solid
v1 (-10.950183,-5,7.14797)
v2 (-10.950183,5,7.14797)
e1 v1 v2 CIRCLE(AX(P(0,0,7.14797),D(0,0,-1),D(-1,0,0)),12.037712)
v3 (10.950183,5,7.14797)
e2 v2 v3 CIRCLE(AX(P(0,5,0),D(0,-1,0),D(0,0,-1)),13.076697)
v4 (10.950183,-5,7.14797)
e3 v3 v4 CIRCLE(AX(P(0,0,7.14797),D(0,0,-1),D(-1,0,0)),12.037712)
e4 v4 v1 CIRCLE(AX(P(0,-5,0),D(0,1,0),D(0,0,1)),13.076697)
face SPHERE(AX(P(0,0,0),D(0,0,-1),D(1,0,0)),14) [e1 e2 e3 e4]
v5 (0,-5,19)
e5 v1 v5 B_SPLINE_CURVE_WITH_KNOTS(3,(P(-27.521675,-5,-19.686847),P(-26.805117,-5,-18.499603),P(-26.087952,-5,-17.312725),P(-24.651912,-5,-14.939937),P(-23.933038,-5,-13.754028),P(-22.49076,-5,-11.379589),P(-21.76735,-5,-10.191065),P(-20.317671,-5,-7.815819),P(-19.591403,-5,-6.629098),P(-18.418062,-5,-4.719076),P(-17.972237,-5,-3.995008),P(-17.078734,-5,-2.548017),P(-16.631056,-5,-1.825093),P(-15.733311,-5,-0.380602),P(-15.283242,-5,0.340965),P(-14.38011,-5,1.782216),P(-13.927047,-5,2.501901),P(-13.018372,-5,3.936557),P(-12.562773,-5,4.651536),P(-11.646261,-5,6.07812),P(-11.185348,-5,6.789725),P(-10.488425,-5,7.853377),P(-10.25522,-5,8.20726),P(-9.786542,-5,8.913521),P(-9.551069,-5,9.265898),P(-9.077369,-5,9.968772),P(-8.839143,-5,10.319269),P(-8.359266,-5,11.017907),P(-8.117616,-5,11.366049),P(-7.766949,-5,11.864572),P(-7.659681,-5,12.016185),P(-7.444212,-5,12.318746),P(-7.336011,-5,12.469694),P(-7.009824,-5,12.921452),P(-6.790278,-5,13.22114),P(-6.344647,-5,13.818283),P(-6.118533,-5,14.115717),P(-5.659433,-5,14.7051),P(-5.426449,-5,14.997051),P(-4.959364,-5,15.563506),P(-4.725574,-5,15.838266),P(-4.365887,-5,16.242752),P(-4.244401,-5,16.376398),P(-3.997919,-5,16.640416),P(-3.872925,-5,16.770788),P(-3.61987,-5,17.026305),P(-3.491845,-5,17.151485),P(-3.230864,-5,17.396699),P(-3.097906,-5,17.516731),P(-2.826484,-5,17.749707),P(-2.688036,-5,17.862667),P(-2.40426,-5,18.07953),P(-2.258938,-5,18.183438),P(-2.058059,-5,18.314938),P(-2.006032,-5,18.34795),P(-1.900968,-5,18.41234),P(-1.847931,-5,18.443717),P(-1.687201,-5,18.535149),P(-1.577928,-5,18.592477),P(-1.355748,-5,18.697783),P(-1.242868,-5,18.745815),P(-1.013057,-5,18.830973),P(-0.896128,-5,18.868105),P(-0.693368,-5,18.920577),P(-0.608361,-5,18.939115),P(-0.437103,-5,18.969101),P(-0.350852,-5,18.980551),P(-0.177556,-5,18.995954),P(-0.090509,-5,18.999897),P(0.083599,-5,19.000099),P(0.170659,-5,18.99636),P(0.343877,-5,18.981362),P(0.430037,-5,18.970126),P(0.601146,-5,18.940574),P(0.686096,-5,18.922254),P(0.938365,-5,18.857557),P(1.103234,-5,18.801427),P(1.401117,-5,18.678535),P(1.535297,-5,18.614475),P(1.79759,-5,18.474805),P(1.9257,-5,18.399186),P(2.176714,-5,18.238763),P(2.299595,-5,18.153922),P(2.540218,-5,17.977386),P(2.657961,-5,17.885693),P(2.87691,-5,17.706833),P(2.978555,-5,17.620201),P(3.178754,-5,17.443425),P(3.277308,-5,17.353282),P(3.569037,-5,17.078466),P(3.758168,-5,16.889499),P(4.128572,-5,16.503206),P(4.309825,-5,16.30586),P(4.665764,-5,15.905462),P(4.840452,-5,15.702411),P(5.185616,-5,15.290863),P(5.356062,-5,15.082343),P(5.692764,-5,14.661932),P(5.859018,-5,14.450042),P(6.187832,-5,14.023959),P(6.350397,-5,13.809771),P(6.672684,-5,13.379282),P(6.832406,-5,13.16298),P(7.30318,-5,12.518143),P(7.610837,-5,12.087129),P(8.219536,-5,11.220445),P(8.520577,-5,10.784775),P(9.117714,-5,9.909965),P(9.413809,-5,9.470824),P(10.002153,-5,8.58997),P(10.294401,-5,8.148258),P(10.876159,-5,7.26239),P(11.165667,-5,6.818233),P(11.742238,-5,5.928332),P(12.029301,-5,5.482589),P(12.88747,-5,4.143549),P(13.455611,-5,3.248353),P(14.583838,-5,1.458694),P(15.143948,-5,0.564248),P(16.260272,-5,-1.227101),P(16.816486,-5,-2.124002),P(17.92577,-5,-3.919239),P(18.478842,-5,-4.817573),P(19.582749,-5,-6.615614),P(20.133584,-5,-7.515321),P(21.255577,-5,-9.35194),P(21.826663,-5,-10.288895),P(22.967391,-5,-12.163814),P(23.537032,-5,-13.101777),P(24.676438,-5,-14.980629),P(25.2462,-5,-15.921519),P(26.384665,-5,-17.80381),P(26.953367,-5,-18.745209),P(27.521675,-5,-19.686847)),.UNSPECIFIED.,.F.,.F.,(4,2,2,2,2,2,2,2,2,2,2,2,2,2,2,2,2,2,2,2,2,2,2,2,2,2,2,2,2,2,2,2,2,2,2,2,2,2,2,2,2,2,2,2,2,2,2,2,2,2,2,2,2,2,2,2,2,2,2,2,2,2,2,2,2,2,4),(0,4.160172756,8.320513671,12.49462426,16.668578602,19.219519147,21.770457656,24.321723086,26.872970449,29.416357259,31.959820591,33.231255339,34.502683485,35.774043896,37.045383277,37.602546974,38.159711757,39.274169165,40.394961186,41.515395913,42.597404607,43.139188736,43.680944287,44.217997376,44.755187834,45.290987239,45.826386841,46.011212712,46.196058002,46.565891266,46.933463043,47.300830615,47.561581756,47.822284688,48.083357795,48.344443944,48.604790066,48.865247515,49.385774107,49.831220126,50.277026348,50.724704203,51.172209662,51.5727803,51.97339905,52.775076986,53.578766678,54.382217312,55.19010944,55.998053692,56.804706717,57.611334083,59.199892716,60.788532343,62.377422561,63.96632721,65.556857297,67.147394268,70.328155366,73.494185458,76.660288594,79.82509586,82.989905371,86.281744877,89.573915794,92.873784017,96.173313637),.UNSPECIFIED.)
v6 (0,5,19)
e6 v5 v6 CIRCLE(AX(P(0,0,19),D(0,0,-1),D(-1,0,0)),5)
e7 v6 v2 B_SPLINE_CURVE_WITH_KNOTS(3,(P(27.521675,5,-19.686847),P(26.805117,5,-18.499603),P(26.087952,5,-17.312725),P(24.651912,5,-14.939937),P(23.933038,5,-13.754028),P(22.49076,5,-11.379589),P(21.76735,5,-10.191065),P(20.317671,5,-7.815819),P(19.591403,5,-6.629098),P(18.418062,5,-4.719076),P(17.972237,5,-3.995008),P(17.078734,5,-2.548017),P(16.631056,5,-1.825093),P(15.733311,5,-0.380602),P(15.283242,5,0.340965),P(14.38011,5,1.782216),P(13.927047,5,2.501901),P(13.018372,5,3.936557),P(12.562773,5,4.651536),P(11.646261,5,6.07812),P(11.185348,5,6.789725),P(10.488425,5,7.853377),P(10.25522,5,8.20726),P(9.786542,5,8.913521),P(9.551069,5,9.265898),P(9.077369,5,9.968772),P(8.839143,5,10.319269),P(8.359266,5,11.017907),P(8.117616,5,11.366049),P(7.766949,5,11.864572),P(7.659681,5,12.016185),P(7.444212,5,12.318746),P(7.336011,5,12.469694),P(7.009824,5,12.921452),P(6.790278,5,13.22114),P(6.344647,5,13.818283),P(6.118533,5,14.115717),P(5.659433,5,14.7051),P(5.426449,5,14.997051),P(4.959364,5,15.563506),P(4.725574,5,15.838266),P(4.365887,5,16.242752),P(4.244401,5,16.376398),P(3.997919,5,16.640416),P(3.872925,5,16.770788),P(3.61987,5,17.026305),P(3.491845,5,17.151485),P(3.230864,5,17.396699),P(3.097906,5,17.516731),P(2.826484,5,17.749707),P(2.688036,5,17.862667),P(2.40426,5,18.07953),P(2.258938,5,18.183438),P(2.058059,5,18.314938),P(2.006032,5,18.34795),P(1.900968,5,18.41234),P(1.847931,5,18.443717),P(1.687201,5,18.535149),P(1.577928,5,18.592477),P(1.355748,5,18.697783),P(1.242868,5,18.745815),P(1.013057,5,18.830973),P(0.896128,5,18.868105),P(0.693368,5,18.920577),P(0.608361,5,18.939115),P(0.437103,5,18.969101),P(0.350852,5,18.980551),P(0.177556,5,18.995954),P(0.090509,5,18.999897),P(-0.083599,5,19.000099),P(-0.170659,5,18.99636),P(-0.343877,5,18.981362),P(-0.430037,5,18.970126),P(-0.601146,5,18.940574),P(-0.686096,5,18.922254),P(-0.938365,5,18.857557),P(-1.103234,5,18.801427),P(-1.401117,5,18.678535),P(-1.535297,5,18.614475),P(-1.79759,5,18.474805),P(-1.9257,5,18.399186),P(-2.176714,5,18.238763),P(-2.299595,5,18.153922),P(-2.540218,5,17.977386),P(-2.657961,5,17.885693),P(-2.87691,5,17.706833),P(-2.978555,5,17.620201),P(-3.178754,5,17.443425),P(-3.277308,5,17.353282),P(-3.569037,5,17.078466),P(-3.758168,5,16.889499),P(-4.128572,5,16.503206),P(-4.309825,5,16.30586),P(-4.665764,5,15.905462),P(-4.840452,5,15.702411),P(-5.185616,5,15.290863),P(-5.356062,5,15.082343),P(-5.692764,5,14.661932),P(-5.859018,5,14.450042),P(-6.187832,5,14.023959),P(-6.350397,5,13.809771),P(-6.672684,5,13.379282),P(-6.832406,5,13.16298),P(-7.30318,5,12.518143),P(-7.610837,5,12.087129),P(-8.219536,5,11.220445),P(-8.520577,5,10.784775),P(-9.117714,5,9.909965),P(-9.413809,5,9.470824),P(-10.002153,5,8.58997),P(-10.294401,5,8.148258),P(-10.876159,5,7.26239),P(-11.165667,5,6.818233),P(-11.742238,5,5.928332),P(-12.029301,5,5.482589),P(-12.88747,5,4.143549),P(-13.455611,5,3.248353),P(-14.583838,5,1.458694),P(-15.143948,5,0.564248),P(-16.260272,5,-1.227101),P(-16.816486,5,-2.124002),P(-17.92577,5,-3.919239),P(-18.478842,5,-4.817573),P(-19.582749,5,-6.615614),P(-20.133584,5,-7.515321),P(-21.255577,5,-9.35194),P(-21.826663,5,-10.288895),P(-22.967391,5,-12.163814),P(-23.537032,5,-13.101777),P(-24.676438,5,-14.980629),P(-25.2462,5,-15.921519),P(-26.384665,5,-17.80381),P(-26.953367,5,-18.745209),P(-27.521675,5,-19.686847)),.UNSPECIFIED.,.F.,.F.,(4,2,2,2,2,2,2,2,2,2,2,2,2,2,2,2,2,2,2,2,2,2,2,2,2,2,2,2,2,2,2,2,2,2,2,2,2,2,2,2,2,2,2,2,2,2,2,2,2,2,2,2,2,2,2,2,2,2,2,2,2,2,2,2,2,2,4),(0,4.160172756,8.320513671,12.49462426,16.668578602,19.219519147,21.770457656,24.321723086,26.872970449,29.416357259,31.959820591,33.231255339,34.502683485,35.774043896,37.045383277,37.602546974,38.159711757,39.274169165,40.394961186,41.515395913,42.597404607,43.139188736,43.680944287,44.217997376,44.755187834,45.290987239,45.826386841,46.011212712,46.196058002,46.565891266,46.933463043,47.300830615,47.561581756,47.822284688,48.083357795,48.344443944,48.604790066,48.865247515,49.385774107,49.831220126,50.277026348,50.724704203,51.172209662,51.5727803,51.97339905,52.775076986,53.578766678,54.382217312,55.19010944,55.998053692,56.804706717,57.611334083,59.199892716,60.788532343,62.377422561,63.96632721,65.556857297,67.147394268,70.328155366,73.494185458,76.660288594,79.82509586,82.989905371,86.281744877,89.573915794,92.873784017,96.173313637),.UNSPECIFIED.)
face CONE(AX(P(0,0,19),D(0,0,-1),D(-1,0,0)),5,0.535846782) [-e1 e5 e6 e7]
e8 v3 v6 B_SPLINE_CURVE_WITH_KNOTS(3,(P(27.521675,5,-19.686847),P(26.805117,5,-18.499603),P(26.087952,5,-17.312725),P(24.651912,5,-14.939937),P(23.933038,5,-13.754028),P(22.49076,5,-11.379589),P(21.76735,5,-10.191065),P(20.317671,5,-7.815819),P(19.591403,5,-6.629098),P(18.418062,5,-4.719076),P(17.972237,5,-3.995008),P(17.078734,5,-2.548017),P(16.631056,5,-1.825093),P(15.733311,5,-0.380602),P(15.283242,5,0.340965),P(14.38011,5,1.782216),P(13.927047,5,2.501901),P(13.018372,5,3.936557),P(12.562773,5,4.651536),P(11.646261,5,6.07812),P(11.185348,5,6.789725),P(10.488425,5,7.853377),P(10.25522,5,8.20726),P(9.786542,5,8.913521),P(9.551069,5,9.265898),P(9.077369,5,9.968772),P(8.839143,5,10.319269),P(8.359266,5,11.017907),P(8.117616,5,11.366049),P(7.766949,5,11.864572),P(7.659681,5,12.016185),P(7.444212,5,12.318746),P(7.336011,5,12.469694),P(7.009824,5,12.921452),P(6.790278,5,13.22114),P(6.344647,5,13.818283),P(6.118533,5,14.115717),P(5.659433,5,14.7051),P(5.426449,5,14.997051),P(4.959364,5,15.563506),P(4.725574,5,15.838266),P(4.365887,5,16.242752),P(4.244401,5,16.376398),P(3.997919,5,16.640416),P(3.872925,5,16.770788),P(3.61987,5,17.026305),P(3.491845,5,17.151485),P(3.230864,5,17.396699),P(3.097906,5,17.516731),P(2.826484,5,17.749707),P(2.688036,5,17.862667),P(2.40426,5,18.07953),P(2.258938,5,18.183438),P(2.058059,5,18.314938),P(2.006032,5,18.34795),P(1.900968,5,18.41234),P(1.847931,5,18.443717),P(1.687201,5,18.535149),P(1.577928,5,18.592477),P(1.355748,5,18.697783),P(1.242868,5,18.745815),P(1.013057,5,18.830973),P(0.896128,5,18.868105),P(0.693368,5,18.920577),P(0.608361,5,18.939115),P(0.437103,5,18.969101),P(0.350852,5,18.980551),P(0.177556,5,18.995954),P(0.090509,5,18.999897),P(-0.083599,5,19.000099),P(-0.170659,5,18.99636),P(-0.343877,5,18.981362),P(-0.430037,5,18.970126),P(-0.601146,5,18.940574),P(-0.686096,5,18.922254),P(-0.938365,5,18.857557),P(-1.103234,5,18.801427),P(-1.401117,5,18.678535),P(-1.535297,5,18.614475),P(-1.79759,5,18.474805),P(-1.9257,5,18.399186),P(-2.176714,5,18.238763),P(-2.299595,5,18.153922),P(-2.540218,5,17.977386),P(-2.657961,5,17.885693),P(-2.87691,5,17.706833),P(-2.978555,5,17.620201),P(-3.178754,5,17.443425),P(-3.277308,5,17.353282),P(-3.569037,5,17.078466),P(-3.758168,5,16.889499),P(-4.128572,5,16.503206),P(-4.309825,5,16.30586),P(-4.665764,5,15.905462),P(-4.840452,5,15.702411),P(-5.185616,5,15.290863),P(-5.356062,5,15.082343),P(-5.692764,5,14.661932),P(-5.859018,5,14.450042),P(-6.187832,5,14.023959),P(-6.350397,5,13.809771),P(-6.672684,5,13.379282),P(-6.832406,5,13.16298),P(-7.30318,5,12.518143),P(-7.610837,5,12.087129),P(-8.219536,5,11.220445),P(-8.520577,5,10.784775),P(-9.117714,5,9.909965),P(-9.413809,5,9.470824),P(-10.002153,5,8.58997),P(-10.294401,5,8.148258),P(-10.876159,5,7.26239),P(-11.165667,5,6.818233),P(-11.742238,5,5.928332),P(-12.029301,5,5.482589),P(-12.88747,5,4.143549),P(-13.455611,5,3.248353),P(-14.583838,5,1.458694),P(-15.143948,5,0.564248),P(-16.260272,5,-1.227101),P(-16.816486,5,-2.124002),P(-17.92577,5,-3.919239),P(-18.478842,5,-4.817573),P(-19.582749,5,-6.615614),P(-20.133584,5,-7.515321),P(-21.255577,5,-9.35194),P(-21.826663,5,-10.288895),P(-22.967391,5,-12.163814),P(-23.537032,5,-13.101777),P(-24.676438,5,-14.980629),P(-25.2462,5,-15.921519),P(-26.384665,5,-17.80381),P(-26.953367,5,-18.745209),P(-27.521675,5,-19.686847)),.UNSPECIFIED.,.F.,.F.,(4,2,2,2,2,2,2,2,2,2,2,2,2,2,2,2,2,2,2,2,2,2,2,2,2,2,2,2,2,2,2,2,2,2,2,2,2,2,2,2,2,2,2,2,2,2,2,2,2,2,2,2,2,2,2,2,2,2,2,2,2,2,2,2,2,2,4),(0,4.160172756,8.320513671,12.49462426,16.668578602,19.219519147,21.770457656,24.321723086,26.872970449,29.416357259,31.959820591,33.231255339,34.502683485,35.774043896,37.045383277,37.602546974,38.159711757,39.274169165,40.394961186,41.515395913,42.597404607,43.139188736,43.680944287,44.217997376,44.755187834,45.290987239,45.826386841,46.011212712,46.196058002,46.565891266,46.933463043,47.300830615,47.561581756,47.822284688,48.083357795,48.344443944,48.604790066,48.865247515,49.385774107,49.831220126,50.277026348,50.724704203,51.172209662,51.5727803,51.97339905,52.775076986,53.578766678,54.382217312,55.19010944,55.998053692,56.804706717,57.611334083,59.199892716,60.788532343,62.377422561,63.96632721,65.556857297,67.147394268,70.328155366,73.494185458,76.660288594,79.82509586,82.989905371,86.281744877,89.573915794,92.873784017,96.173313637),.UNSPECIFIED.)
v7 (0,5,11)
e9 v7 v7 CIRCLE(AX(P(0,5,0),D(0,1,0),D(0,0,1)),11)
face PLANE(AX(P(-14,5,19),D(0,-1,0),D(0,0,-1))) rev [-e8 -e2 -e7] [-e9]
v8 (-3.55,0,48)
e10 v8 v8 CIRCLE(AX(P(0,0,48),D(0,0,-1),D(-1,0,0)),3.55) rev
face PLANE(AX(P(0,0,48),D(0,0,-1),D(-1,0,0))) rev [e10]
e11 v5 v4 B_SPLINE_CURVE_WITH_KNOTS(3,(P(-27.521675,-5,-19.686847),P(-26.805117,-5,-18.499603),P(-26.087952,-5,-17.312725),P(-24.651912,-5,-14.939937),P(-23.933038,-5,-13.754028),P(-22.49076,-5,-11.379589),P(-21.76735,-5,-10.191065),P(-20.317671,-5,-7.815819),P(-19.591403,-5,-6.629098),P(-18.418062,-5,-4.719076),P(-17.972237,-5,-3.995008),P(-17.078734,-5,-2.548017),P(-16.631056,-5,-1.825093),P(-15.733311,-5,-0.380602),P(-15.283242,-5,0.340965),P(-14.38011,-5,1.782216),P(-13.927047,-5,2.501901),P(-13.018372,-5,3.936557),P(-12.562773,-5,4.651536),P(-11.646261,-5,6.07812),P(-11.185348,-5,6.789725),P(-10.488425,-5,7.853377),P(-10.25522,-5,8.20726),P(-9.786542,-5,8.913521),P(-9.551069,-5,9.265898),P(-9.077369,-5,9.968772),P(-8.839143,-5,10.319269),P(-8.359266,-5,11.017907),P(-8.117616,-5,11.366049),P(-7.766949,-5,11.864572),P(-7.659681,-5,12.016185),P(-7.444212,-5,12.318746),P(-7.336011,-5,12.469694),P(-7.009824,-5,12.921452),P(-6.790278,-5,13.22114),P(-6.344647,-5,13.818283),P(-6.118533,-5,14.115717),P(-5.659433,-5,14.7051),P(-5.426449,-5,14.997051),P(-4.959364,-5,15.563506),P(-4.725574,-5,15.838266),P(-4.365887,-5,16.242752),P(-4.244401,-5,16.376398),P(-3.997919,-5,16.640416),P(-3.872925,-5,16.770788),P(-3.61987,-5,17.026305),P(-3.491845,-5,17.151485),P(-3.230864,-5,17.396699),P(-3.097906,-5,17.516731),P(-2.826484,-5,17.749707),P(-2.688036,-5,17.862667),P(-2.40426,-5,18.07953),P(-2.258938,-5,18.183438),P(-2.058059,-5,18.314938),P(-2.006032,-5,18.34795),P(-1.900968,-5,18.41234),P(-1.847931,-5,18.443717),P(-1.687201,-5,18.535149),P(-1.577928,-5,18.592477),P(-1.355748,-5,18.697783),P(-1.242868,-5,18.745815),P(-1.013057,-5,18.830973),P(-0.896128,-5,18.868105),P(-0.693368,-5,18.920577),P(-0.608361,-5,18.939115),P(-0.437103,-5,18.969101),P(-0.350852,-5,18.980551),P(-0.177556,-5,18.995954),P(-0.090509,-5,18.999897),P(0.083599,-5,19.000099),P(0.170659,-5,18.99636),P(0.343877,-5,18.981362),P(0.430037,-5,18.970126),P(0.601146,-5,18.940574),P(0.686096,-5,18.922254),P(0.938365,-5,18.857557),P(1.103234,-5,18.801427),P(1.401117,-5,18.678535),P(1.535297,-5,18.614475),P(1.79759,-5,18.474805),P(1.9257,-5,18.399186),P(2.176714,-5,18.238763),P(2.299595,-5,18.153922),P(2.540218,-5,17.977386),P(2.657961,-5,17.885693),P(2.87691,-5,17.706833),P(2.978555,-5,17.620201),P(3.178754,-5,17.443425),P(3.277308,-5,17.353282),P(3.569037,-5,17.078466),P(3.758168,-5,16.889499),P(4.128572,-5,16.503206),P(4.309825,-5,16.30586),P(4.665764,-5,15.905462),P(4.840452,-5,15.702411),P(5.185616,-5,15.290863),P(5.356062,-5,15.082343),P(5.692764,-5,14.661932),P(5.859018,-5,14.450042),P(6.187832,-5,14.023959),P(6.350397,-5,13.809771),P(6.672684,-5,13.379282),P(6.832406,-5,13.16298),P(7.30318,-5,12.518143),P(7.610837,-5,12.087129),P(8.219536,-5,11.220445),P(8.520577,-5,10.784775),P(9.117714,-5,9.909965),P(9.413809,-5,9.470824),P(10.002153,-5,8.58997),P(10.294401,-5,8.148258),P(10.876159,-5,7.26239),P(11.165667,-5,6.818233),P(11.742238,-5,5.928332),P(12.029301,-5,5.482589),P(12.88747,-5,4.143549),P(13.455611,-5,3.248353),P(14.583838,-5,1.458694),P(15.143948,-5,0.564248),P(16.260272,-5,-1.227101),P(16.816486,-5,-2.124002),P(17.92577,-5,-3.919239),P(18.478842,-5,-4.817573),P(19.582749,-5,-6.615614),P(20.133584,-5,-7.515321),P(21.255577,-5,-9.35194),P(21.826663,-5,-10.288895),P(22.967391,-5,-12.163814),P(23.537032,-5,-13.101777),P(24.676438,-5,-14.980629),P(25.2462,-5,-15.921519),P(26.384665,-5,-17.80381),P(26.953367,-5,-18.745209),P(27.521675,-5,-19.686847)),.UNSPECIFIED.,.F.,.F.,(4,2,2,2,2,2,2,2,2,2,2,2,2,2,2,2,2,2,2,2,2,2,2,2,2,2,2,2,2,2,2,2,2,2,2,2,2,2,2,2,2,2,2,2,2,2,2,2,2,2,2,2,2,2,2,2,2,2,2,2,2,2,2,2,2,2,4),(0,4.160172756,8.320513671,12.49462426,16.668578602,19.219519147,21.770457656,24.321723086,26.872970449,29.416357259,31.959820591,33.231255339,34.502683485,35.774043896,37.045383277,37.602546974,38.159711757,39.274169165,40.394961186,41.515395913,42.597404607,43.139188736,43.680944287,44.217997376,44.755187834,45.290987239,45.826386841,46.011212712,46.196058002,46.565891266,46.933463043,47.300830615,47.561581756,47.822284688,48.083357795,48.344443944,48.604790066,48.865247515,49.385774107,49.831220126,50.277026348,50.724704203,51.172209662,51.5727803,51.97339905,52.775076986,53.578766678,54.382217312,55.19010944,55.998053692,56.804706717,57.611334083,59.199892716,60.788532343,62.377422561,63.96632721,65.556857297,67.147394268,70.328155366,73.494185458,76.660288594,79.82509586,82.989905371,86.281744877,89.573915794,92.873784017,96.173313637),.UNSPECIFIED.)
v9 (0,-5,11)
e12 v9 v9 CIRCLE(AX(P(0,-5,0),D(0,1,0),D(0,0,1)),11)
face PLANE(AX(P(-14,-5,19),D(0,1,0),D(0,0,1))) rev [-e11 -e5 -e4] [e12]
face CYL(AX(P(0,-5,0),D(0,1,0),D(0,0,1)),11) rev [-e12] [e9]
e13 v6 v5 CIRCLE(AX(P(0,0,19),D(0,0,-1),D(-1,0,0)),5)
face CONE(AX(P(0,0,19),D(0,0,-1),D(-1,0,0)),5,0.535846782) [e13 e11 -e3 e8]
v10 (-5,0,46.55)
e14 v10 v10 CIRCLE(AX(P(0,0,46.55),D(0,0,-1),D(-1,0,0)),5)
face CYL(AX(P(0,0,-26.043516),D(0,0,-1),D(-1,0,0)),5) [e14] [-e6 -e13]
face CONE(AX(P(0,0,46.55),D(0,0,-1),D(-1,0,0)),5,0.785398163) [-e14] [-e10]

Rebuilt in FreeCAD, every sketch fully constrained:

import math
import FreeCAD as App
import Part
import Sketcher
from FreeCAD import Vector


def edges_at(feature, points):
    """Names of the edges that pass closest to the given points."""
    edges = feature.Shape.Edges
    near = lambda p: min(range(len(edges)), key=lambda i: edges[i].distToShape(Part.Vertex(*p))[0])
    return sorted({f"Edge{near(p) + 1}" for p in points})

doc = App.newDocument("Part")
body = doc.addObject("PartDesign::Body", "Body")

sketch1 = body.newObject("Sketcher::SketchObject", "Sketch")
sketch1.AttachmentSupport = (doc.getObject("XZ_Plane"), [""])
sketch1.MapMode = "FlatFace"
sketch1.addGeometry(Part.LineSegment(Vector(0, -14, 0), Vector(0, 48, 0)), False)
sketch1.addGeometry(Part.LineSegment(Vector(0, 48, 0), Vector(5, 48, 0)), False)
sketch1.addGeometry(Part.LineSegment(Vector(5, 48, 0), Vector(5, 19, 0)), False)
sketch1.addGeometry(Part.LineSegment(Vector(5, 19, 0), Vector(12, 7, 0)), False)
sketch1.addGeometry(Part.ArcOfCircle(Part.Circle(Vector(0, 0, 0), Vector(0, 0, 1), 14), math.radians(-90), math.radians(31)), False)
sketch1.addConstraint(Sketcher.Constraint("Coincident", 0, 2, 1, 1))
sketch1.addConstraint(Sketcher.Constraint("Coincident", 1, 2, 2, 1))
sketch1.addConstraint(Sketcher.Constraint("Coincident", 2, 2, 3, 1))
sketch1.addConstraint(Sketcher.Constraint("Tangent", 3, 2, 4, 2))
sketch1.addConstraint(Sketcher.Constraint("Coincident", 4, 1, 0, 1))
sketch1.addConstraint(Sketcher.Constraint("Vertical", 0))
sketch1.addConstraint(Sketcher.Constraint("Horizontal", 1))
sketch1.addConstraint(Sketcher.Constraint("Vertical", 2))
sketch1.addConstraint(Sketcher.Constraint("Coincident", 4, 3, -1, 1))
sketch1.addConstraint(Sketcher.Constraint("PointOnObject", 0, 2, -2))
sketch1.addConstraint(Sketcher.Constraint("Radius", 4, 14.0))
sketch1.addConstraint(Sketcher.Constraint("DistanceX", 1, 1, 1, 2, 5.0))
sketch1.addConstraint(Sketcher.Constraint("DistanceY", 0, 1, 0, 2, 62.0))
sketch1.addConstraint(Sketcher.Constraint("DistanceY", 2, 2, 2, 1, 29.0))
revolution = body.newObject("PartDesign::Revolution", "Revolution")
revolution.Profile = sketch1
revolution.ReferenceAxis = (sketch1, ["V_Axis"])
revolution.Angle = 360

sketch2 = body.newObject("Sketcher::SketchObject", "Sketch001")
sketch2.AttachmentSupport = (doc.getObject("YZ_Plane"), [""])
sketch2.MapMode = "FlatFace"
sketch2.addGeometry(Part.LineSegment(Vector(5, 19, 0), Vector(5, -13, 0)), False)
sketch2.addGeometry(Part.ArcOfCircle(Part.Circle(Vector(0, 0, 0), Vector(0, 0, 1), 14), math.radians(-69), math.radians(31)), False)
sketch2.addGeometry(Part.LineSegment(Vector(12, 7, 0), Vector(5, 19, 0)), False)
sketch2.addGeometry(Part.LineSegment(Vector(-5, -13, 0), Vector(-5, 19, 0)), False)
sketch2.addGeometry(Part.LineSegment(Vector(-5, 19, 0), Vector(-12, 7, 0)), False)
sketch2.addGeometry(Part.ArcOfCircle(Part.Circle(Vector(0, 0, 0), Vector(0, 0, 1), 14), math.radians(149), math.radians(249)), False)
sketch2.addConstraint(Sketcher.Constraint("Coincident", 0, 2, 1, 1))
sketch2.addConstraint(Sketcher.Constraint("Tangent", 1, 2, 2, 1))
sketch2.addConstraint(Sketcher.Constraint("Coincident", 2, 2, 0, 1))
sketch2.addConstraint(Sketcher.Constraint("Coincident", 3, 2, 4, 1))
sketch2.addConstraint(Sketcher.Constraint("Tangent", 4, 2, 5, 1))
sketch2.addConstraint(Sketcher.Constraint("Coincident", 5, 2, 3, 1))
sketch2.addConstraint(Sketcher.Constraint("Vertical", 0))
sketch2.addConstraint(Sketcher.Constraint("Vertical", 3))
sketch2.addConstraint(Sketcher.Constraint("Coincident", 1, 3, -1, 1))
sketch2.addConstraint(Sketcher.Constraint("Coincident", 5, 3, -1, 1))
sketch2.addConstraint(Sketcher.Constraint("Equal", 1, 5))
sketch2.addConstraint(Sketcher.Constraint("Symmetric", 2, 2, 3, 2, -2))
sketch2.addConstraint(Sketcher.Constraint("Radius", 1, 14.0))
sketch2.addConstraint(Sketcher.Constraint("DistanceX", -1, 1, 0, 2, 5.0))
sketch2.addConstraint(Sketcher.Constraint("DistanceY", -1, 1, 2, 2, 19.0))
pocket1 = body.newObject("PartDesign::Pocket", "Pocket")
pocket1.Profile = sketch2
pocket1.Type = "ThroughAll"
pocket1.Midplane = True

sketch3 = body.newObject("Sketcher::SketchObject", "Sketch002")
sketch3.AttachmentSupport = (doc.getObject("XZ_Plane"), [""])
sketch3.MapMode = "FlatFace"
sketch3.addGeometry(Part.Circle(Vector(0, 0, 0), Vector(0, 0, 1), 11), False)
sketch3.addConstraint(Sketcher.Constraint("Coincident", 0, 3, -1, 1))
sketch3.addConstraint(Sketcher.Constraint("Diameter", 0, 22.0))
pocket2 = body.newObject("PartDesign::Pocket", "Pocket001")
pocket2.Profile = sketch3
pocket2.Type = "ThroughAll"
pocket2.Midplane = True
doc.recompute()

chamfer = body.newObject("PartDesign::Chamfer", "Chamfer")
chamfer.Base = (pocket2, edges_at(pocket2, [(-5, 0, 48)]))
chamfer.Size = 1.45

doc.recompute()
